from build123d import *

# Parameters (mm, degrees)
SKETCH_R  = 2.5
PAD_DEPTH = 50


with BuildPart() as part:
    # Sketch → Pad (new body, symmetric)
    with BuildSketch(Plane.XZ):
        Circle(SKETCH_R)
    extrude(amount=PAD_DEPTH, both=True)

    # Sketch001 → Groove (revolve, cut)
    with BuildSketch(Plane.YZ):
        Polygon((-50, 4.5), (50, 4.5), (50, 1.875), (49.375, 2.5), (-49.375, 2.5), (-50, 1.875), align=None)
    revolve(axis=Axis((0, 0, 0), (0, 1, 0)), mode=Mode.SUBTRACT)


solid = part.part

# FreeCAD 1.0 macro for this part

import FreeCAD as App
import Part
import Sketcher

V = App.Vector


def add_polygon(sketch, points):
    """Adds a closed chain of lines whose ends are joined by coincident constraints."""
    first, n = sketch.GeometryCount, len(points)
    for a, b in zip(points, points[1:] + points[:1]):
        sketch.addGeometry(Part.LineSegment(App.Vector(*a, 0), App.Vector(*b, 0)), False)
    for i in range(n):
        sketch.addConstraint(Sketcher.Constraint("Coincident", first + i, 2, first + (i + 1) % n, 1))

doc = App.newDocument("Part")
body = doc.addObject("PartDesign::Body", "Body")

# Sketch on XZ plane
sketch1 = body.newObject("Sketcher::SketchObject", "Sketch")
sketch1.AttachmentSupport = (doc.getObject("XZ_Plane"), [""])
sketch1.MapMode = "FlatFace"
sketch1.addGeometry(Part.Circle(V(0, 0, 0), V(0, 0, 1), 2.5), False)
sketch1.addConstraint([
    Sketcher.Constraint("Coincident", 0, 3, -1, 1),
    Sketcher.Constraint("Diameter", 0, 5.0),
])
pad1 = body.newObject("PartDesign::Pad", "Pad")
pad1.Profile = sketch1
pad1.Length = 100
pad1.Midplane = True

# Sketch on YZ plane
sketch2 = body.newObject("Sketcher::SketchObject", "Sketch001")
sketch2.AttachmentSupport = (doc.getObject("YZ_Plane"), [""])
sketch2.MapMode = "FlatFace"
add_polygon(sketch2, [(50, 4.5), (-50, 4.5), (-50, 1.875), (-49.375, 2.5), (49.375, 2.5), (50, 1.875)])  # lines 0-5
sketch2.addConstraint([
    Sketcher.Constraint("Horizontal", 0),
    Sketcher.Constraint("Vertical", 1),
    Sketcher.Constraint("Horizontal", 3),
    Sketcher.Constraint("Vertical", 5),
    Sketcher.Constraint("Symmetric", 1, 2, 4, 2, -2),
    Sketcher.Constraint("Perpendicular", 2, 4),
    Sketcher.Constraint("Equal", 2, 4),
    Sketcher.Constraint("DistanceX", 0, 2, 0, 1, 100.0),
    Sketcher.Constraint("DistanceY", 2, 2, 0, 2, 2.0),
    Sketcher.Constraint("DistanceX", 3, 1, 3, 2, 98.75),
    Sketcher.Constraint("DistanceY", -1, 1, 0, 2, 4.5),
])
groove = body.newObject("PartDesign::Groove", "Groove")
groove.Profile = sketch2
groove.ReferenceAxis = (sketch2, ["H_Axis"])
groove.Angle = 360

doc.recompute()
